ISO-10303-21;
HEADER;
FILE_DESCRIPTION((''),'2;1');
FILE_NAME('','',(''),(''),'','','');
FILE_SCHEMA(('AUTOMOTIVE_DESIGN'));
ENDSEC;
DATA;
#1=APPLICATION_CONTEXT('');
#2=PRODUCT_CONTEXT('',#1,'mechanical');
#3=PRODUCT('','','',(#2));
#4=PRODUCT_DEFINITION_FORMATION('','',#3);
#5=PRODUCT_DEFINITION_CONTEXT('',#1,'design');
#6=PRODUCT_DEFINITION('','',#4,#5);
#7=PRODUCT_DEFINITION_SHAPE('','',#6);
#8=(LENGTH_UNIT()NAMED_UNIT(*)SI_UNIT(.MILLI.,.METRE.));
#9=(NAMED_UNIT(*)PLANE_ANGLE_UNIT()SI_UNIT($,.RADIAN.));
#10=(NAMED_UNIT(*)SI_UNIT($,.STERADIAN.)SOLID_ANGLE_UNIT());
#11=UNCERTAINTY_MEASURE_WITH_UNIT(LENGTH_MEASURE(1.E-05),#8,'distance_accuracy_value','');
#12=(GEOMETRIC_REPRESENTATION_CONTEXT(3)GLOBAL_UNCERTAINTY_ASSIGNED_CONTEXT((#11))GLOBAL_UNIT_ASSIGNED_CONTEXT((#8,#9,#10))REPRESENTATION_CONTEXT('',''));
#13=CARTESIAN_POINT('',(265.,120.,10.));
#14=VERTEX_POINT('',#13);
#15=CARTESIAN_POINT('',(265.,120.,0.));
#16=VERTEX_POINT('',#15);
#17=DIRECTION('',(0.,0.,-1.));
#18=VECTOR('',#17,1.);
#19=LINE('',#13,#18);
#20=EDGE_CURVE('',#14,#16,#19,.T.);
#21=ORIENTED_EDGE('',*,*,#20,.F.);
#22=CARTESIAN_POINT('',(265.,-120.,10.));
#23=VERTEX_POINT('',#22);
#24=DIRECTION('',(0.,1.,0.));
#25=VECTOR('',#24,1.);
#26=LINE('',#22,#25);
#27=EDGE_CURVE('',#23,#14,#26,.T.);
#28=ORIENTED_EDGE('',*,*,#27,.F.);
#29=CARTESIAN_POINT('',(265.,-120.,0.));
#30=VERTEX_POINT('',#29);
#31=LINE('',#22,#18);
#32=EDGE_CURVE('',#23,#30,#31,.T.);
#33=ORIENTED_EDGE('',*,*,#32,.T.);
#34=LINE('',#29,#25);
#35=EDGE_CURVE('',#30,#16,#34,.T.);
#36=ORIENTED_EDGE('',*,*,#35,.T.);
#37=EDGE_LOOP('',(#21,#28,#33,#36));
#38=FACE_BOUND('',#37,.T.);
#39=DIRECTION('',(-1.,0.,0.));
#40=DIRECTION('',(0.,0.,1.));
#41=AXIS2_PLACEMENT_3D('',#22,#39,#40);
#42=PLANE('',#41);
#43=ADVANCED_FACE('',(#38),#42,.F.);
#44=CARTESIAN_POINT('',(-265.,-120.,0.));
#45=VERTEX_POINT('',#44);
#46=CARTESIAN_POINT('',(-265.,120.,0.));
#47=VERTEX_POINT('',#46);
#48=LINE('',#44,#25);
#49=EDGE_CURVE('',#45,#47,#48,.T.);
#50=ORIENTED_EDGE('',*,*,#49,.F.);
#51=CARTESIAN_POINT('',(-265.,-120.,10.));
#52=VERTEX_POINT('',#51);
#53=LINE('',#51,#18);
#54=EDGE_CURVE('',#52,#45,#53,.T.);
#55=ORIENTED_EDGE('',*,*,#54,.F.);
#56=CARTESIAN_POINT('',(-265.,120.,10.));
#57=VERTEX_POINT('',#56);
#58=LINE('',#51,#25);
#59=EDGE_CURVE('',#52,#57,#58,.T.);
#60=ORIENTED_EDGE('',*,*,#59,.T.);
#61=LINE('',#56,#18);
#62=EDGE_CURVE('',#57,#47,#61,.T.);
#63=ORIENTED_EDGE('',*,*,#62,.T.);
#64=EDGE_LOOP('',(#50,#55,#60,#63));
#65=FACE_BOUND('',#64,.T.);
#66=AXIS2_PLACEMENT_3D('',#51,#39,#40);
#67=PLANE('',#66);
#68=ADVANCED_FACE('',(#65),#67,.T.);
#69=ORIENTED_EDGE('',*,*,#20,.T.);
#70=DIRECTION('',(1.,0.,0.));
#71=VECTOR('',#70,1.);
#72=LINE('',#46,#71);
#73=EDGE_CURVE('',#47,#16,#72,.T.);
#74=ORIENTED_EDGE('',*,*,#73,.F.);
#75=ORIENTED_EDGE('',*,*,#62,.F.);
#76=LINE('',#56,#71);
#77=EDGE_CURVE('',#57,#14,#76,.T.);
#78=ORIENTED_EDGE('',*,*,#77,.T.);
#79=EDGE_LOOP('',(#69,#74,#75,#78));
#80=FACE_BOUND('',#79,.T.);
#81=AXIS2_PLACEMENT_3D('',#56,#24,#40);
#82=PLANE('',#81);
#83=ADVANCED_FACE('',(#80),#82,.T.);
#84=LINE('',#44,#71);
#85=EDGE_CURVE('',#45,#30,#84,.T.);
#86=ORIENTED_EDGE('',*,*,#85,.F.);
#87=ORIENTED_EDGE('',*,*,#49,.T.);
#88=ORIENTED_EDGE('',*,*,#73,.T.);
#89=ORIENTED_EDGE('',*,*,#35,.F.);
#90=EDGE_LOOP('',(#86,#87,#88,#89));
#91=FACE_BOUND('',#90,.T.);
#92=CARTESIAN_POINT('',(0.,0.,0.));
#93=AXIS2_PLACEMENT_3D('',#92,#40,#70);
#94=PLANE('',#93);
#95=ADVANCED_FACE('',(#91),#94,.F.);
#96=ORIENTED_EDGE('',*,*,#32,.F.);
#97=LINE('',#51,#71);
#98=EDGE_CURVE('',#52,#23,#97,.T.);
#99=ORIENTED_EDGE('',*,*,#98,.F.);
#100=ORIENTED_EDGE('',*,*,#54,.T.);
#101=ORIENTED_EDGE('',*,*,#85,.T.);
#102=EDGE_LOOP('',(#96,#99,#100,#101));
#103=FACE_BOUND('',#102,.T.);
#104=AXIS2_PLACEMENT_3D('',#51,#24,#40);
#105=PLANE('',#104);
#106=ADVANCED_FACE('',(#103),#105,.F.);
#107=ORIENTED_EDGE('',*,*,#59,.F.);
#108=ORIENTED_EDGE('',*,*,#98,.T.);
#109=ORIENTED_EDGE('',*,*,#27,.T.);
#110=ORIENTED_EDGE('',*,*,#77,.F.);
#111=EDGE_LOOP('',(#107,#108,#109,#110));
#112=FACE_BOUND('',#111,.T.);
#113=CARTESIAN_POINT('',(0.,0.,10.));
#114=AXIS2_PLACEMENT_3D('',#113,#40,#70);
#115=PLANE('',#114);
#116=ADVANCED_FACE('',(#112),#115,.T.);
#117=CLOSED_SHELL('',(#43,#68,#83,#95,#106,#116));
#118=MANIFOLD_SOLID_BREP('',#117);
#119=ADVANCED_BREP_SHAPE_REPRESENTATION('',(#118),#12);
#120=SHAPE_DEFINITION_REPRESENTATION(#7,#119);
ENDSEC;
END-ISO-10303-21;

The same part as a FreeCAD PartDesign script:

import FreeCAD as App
import Part
import Sketcher

V = App.Vector


def add_polygon(sketch, points):
    """Adds a closed chain of lines whose ends are joined by coincident constraints."""
    first, n = sketch.GeometryCount, len(points)
    for a, b in zip(points, points[1:] + points[:1]):
        sketch.addGeometry(Part.LineSegment(App.Vector(*a, 0), App.Vector(*b, 0)), False)
    for i in range(n):
        sketch.addConstraint(Sketcher.Constraint("Coincident", first + i, 2, first + (i + 1) % n, 1))

doc = App.newDocument("Part")
params = doc.addObject("Spreadsheet::Sheet", "Params")
for row, (alias, value) in enumerate([
    ("sketch1_width", "530 mm"),
    ("sketch1_height", "240 mm"),
    ("pad1_length", "10 mm"),
], start=1):
    params.set(f"A{row}", alias)
    params.set(f"B{row}", "=" + value)
    params.setAlias(f"B{row}", alias)

body = doc.addObject("PartDesign::Body", "Body")

sketch1 = doc.addObject("Sketcher::SketchObject", "Sketch")
body.addObject(sketch1)
sketch1.AttachmentSupport = (doc.XY_Plane, [""])
sketch1.MapMode = "FlatFace"
add_polygon(sketch1, [(-265, 120), (-265, -120), (265, -120), (265, 120)])
sketch1.addConstraint(Sketcher.Constraint("Vertical", 0))
sketch1.addConstraint(Sketcher.Constraint("Horizontal", 1))
sketch1.addConstraint(Sketcher.Constraint("Vertical", 2))
sketch1.addConstraint(Sketcher.Constraint("Horizontal", 3))
sketch1.addConstraint(Sketcher.Constraint("Symmetric", 0, 2, 2, 2, -1, 1))
sketch1.addConstraint(Sketcher.Constraint("DistanceX", 1, 1, 1, 2, 530.0))
sketch1.addConstraint(Sketcher.Constraint("DistanceY", 0, 2, 0, 1, 240.0))
sketch1.setExpression("Constraints[9]", "Params.sketch1_width")
sketch1.setExpression("Constraints[10]", "Params.sketch1_height")
pad1 = doc.addObject("PartDesign::Pad", "Pad")
body.addObject(pad1)
pad1.Profile = sketch1
pad1.setExpression("Length", "Params.pad1_length")

doc.recompute()
